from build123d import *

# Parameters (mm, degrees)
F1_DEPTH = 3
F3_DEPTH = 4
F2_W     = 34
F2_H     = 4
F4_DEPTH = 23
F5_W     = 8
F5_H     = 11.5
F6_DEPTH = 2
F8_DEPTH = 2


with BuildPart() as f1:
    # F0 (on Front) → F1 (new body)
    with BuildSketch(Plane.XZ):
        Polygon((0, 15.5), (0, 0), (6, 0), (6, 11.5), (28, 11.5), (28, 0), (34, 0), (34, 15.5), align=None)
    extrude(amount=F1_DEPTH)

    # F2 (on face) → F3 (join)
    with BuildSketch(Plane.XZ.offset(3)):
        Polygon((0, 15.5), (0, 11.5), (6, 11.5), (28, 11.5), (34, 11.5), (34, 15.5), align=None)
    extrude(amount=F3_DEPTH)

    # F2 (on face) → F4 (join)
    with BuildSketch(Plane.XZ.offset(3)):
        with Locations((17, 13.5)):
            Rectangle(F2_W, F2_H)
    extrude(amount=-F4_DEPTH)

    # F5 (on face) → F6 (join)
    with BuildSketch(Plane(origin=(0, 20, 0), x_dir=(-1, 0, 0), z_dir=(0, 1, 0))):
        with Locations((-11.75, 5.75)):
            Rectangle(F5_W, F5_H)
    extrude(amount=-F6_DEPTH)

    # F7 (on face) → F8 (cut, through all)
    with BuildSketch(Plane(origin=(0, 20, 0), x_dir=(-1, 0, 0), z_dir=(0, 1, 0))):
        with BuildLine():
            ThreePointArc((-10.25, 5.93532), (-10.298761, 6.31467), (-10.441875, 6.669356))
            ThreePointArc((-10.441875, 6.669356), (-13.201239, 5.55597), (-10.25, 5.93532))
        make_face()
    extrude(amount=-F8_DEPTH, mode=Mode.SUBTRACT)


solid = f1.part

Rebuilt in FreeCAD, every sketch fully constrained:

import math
import FreeCAD as App
import Part
import Sketcher

V = App.Vector
Q = App.Units.Quantity

doc = App.newDocument("Part")
body = doc.addObject("PartDesign::Body", "Body")

# Sketch on XZ plane
sketch1 = body.newObject("Sketcher::SketchObject", "Sketch")
sketch1.AttachmentSupport = (doc.getObject("XZ_Plane"), [""])
sketch1.MapMode = "FlatFace"
sketch1.addGeometry([
    Part.LineSegment(V(0, 15.5, 0), V(0, 0, 0)),  # 0
    Part.LineSegment(V(0, 0, 0), V(6, 0, 0)),  # 1
    Part.LineSegment(V(6, 0, 0), V(6, 11.5, 0)),  # 2
    Part.LineSegment(V(6, 11.5, 0), V(28, 11.5, 0)),  # 3
    Part.LineSegment(V(28, 11.5, 0), V(28, 0, 0)),  # 4
    Part.LineSegment(V(28, 0, 0), V(34, 0, 0)),  # 5
    Part.LineSegment(V(34, 0, 0), V(34, 15.5, 0)),  # 6
    Part.LineSegment(V(34, 15.5, 0), V(0, 15.5, 0)),  # 7
], False)
sketch1.addConstraint([
    Sketcher.Constraint("Coincident", 0, 2, 1, 1),
    Sketcher.Constraint("Coincident", 1, 2, 2, 1),
    Sketcher.Constraint("Coincident", 2, 2, 3, 1),
    Sketcher.Constraint("Coincident", 3, 2, 4, 1),
    Sketcher.Constraint("Coincident", 4, 2, 5, 1),
    Sketcher.Constraint("Coincident", 5, 2, 6, 1),
    Sketcher.Constraint("Coincident", 6, 2, 7, 1),
    Sketcher.Constraint("Coincident", 7, 2, 0, 1),
    Sketcher.Constraint("Vertical", 0),
    Sketcher.Constraint("Horizontal", 1),
    Sketcher.Constraint("Vertical", 2),
    Sketcher.Constraint("Horizontal", 3),
    Sketcher.Constraint("Vertical", 4),
    Sketcher.Constraint("Horizontal", 5),
    Sketcher.Constraint("Vertical", 6),
    Sketcher.Constraint("Horizontal", 7),
    Sketcher.Constraint("Coincident", 0, 2, -1, 1),
    Sketcher.Constraint("PointOnObject", 4, 2, -1),
    Sketcher.Constraint("Equal", 1, 5),
    Sketcher.Constraint("DistanceX", 1, 1, 1, 2, Q("6 mm")),
    Sketcher.Constraint("DistanceX", 3, 1, 3, 2, Q("22 mm")),
    Sketcher.Constraint("DistanceY", 0, 2, 0, 1, Q("15.5 mm")),
    Sketcher.Constraint("DistanceY", 2, 1, 2, 2, Q("11.5 mm")),
])
pad1 = body.newObject("PartDesign::Pad", "Pad")
pad1.Profile = sketch1
pad1.Length = 3

# Sketch on XZ plane
sketch2 = body.newObject("Sketcher::SketchObject", "Sketch001")
sketch2.AttachmentSupport = (doc.getObject("XZ_Plane"), [""])
sketch2.MapMode = "FlatFace"
sketch2.AttachmentOffset = App.Placement(V(0, 0, 3), App.Rotation())
sketch2.addGeometry([
    Part.LineSegment(V(0, 15.5, 0), V(0, 11.5, 0)),
    Part.LineSegment(V(0, 11.5, 0), V(34, 11.5, 0)),
    Part.LineSegment(V(34, 11.5, 0), V(34, 15.5, 0)),
    Part.LineSegment(V(34, 15.5, 0), V(0, 15.5, 0)),
], False)
sketch2.addConstraint([
    Sketcher.Constraint("Coincident", 0, 2, 1, 1),
    Sketcher.Constraint("Coincident", 1, 2, 2, 1),
    Sketcher.Constraint("Coincident", 2, 2, 3, 1),
    Sketcher.Constraint("Coincident", 3, 2, 0, 1),
    Sketcher.Constraint("Vertical", 0),
    Sketcher.Constraint("Horizontal", 1),
    Sketcher.Constraint("Vertical", 2),
    Sketcher.Constraint("Horizontal", 3),
    Sketcher.Constraint("PointOnObject", 0, 2, -2),
    Sketcher.Constraint("DistanceX", 1, 1, 1, 2, Q("34 mm")),
    Sketcher.Constraint("DistanceY", 0, 2, 0, 1, Q("4 mm")),
    Sketcher.Constraint("DistanceY", -1, 1, 0, 2, Q("11.5 mm")),
])
pad2 = body.newObject("PartDesign::Pad", "Pad001")
pad2.Profile = sketch2
pad2.Length = 4

# Sketch on XZ plane
sketch3 = body.newObject("Sketcher::SketchObject", "Sketch002")
sketch3.AttachmentSupport = (doc.getObject("XZ_Plane"), [""])
sketch3.MapMode = "FlatFace"
sketch3.AttachmentOffset = App.Placement(V(0, 0, 3), App.Rotation())
sketch3.addGeometry([
    Part.LineSegment(V(0, 15.5, 0), V(0, 11.5, 0)),
    Part.LineSegment(V(0, 11.5, 0), V(34, 11.5, 0)),
    Part.LineSegment(V(34, 11.5, 0), V(34, 15.5, 0)),
    Part.LineSegment(V(34, 15.5, 0), V(0, 15.5, 0)),
], False)
sketch3.addConstraint([
    Sketcher.Constraint("Coincident", 0, 2, 1, 1),
    Sketcher.Constraint("Coincident", 1, 2, 2, 1),
    Sketcher.Constraint("Coincident", 2, 2, 3, 1),
    Sketcher.Constraint("Coincident", 3, 2, 0, 1),
    Sketcher.Constraint("Vertical", 0),
    Sketcher.Constraint("Horizontal", 1),
    Sketcher.Constraint("Vertical", 2),
    Sketcher.Constraint("Horizontal", 3),
    Sketcher.Constraint("PointOnObject", 0, 2, -2),
    Sketcher.Constraint("DistanceX", 1, 1, 1, 2, Q("34 mm")),
    Sketcher.Constraint("DistanceY", 0, 2, 0, 1, Q("4 mm")),
    Sketcher.Constraint("DistanceY", -1, 1, 0, 2, Q("11.5 mm")),
])
pad3 = body.newObject("PartDesign::Pad", "Pad002")
pad3.Profile = sketch3
pad3.Length = 23
pad3.Reversed = True

# Sketch on XZ plane
sketch4 = body.newObject("Sketcher::SketchObject", "Sketch003")
sketch4.AttachmentSupport = (doc.getObject("XZ_Plane"), [""])
sketch4.MapMode = "FlatFace"
sketch4.AttachmentOffset = App.Placement(V(0, 0, -20), App.Rotation())
sketch4.addGeometry([
    Part.LineSegment(V(15.75, 11.5, 0), V(15.75, 0, 0)),
    Part.LineSegment(V(15.75, 0, 0), V(7.75, 0, 0)),
    Part.LineSegment(V(7.75, 0, 0), V(7.75, 11.5, 0)),
    Part.LineSegment(V(7.75, 11.5, 0), V(15.75, 11.5, 0)),
], False)
sketch4.addConstraint([
    Sketcher.Constraint("Coincident", 0, 2, 1, 1),
    Sketcher.Constraint("Coincident", 1, 2, 2, 1),
    Sketcher.Constraint("Coincident", 2, 2, 3, 1),
    Sketcher.Constraint("Coincident", 3, 2, 0, 1),
    Sketcher.Constraint("Vertical", 0),
    Sketcher.Constraint("Horizontal", 1),
    Sketcher.Constraint("Vertical", 2),
    Sketcher.Constraint("Horizontal", 3),
    Sketcher.Constraint("PointOnObject", 0, 2, -1),
    Sketcher.Constraint("DistanceX", 1, 2, 1, 1, Q("8 mm")),
    Sketcher.Constraint("DistanceY", 0, 2, 0, 1, Q("11.5 mm")),
    Sketcher.Constraint("DistanceX", -1, 1, 0, 2, Q("15.75 mm")),
])
pad4 = body.newObject("PartDesign::Pad", "Pad003")
pad4.Profile = sketch4
pad4.Length = 2

# Sketch on XZ plane
sketch5 = body.newObject("Sketcher::SketchObject", "Sketch004")
sketch5.AttachmentSupport = (doc.getObject("XZ_Plane"), [""])
sketch5.MapMode = "FlatFace"
sketch5.AttachmentOffset = App.Placement(V(0, 0, -20), App.Rotation())
sketch5.addGeometry([
    Part.ArcOfCircle(Part.Circle(V(11.749989, 5.935323, 0), V(0, 0, 1), 1.499989), math.radians(150.701535), math.radians(180.000108)),
    Part.ArcOfCircle(Part.Circle(V(11.75, 5.93532, 0), V(0, 0, 1), 1.5), math.radians(179.999995), math.radians(510.701648)),
], False)
sketch5.addConstraint([
    Sketcher.Constraint("Tangent", 0, 1, 1, 2),
    Sketcher.Constraint("Coincident", 1, 1, 0, 2),
    Sketcher.Constraint("Radius", 1, Q("1.5 mm")),
    Sketcher.Constraint("DistanceX", -1, 1, 1, 3, Q("11.75 mm")),
    Sketcher.Constraint("DistanceY", -1, 1, 1, 3, Q("5.93532 mm")),
    Sketcher.Constraint("DistanceY", -1, 1, 1, 1, Q("5.93532 mm")),
    Sketcher.Constraint("DistanceX", -1, 1, 0, 1, Q("10.441875 mm")),
])
pocket1 = body.newObject("PartDesign::Pocket", "Pocket")
pocket1.Profile = sketch5
pocket1.Type = "ThroughAll"
pocket1.Reversed = True

doc.recompute()
